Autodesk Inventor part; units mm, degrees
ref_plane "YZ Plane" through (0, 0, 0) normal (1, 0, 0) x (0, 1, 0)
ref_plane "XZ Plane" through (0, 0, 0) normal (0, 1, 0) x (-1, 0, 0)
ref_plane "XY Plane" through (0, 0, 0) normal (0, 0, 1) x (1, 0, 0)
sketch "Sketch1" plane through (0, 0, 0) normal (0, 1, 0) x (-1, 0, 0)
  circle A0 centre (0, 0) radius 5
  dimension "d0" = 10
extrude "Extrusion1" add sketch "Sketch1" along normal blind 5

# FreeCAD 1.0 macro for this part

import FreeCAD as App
import Part
import Sketcher

doc = App.newDocument("Part")
body = doc.addObject("PartDesign::Body", "Body")

# Sketch on XZ plane
sketch1 = doc.addObject("Sketcher::SketchObject", "Sketch")
body.addObject(sketch1)
sketch1.AttachmentSupport = (doc.XZ_Plane, [""])
sketch1.MapMode = "FlatFace"
sketch1.addGeometry(Part.Circle(App.Vector(0, 0, 0), App.Vector(0, 0, 1), 5), False)
sketch1.addConstraint([
    Sketcher.Constraint("Coincident", 0, 3, -1, 1),
    Sketcher.Constraint("Diameter", 0, 10.0),
])
pad1 = doc.addObject("PartDesign::Pad", "Pad")
body.addObject(pad1)
pad1.Profile = sketch1
pad1.Length = 5
pad1.Reversed = True

doc.recompute()
